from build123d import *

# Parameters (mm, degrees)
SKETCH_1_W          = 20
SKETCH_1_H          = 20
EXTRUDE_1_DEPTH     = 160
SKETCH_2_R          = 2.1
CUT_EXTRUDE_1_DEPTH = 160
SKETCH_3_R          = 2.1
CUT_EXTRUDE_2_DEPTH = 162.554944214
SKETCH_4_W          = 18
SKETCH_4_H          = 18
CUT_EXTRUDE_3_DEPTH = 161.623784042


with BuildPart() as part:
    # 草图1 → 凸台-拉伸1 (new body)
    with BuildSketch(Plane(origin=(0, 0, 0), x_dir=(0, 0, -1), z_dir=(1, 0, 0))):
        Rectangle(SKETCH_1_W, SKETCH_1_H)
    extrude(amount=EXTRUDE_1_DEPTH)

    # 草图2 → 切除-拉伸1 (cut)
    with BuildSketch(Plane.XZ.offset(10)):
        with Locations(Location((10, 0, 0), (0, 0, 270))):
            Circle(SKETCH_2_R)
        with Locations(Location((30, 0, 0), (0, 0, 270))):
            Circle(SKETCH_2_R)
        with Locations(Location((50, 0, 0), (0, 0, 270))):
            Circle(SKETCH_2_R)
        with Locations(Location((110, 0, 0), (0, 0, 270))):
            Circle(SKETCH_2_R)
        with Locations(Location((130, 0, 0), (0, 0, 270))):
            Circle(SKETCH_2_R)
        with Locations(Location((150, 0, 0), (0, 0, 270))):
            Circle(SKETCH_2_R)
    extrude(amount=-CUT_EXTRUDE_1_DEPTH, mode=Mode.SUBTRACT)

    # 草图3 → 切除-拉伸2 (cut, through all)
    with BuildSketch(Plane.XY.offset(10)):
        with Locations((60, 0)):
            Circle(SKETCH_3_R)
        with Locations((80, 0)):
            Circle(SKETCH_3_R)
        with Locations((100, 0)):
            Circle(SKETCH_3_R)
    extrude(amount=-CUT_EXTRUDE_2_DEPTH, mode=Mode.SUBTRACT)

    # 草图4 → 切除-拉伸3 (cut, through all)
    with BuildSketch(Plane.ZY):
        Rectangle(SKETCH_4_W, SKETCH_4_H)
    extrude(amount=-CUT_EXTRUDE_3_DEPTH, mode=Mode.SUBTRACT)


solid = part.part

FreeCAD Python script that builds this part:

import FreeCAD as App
import Part
import Sketcher
from FreeCAD import Vector
Q = App.Units.Quantity

doc = App.newDocument("Part")
body = doc.addObject("PartDesign::Body", "Body")

# Sketch on YZ plane
sketch1 = body.newObject("Sketcher::SketchObject", "Sketch")
sketch1.AttachmentSupport = (doc.getObject("YZ_Plane"), [""])
sketch1.MapMode = "FlatFace"
sketch1.addGeometry([
    Part.LineSegment(Vector(10, 10, 0), Vector(-10, 10, 0)),
    Part.LineSegment(Vector(-10, 10, 0), Vector(-10, -10, 0)),
    Part.LineSegment(Vector(-10, -10, 0), Vector(10, -10, 0)),
    Part.LineSegment(Vector(10, -10, 0), Vector(10, 10, 0)),
], False)
sketch1.addConstraint([
    Sketcher.Constraint("Coincident", 0, 2, 1, 1),
    Sketcher.Constraint("Coincident", 1, 2, 2, 1),
    Sketcher.Constraint("Coincident", 2, 2, 3, 1),
    Sketcher.Constraint("Coincident", 3, 2, 0, 1),
    Sketcher.Constraint("Horizontal", 0),
    Sketcher.Constraint("Vertical", 1),
    Sketcher.Constraint("Horizontal", 2),
    Sketcher.Constraint("Vertical", 3),
    Sketcher.Constraint("Symmetric", 0, 2, 2, 2, -1, 1),
    Sketcher.Constraint("Equal", 2, 1),
    Sketcher.Constraint("DistanceX", 0, 2, 0, 1, Q("20 mm")),
])
pad1 = body.newObject("PartDesign::Pad", "Pad")
pad1.Profile = sketch1
pad1.Length = 160

# Sketch on XZ plane
sketch2 = body.newObject("Sketcher::SketchObject", "Sketch001")
sketch2.AttachmentSupport = (doc.getObject("XZ_Plane"), [""])
sketch2.MapMode = "FlatFace"
sketch2.AttachmentOffset = App.Placement(Vector(0, 0, 10), App.Rotation())
sketch2.addGeometry([
    Part.Circle(Vector(10, 0, 0), Vector(0, 0, 1), 2.1),  # 0
    Part.Circle(Vector(30, 0, 0), Vector(0, 0, 1), 2.1),  # 1
    Part.Circle(Vector(50, 0, 0), Vector(0, 0, 1), 2.1),  # 2
    Part.Circle(Vector(110, 0, 0), Vector(0, 0, 1), 2.1),  # 3
    Part.Circle(Vector(130, 0, 0), Vector(0, 0, 1), 2.1),  # 4
    Part.Circle(Vector(150, 0, 0), Vector(0, 0, 1), 2.1),  # 5
], False)
sketch2.addConstraint([
    Sketcher.Constraint("Equal", 0, 1),
    Sketcher.Constraint("Equal", 1, 2),
    Sketcher.Constraint("Equal", 2, 3),
    Sketcher.Constraint("Equal", 3, 4),
    Sketcher.Constraint("Equal", 4, 5),
    Sketcher.Constraint("PointOnObject", 0, 3, -1),
    Sketcher.Constraint("PointOnObject", 1, 3, -1),
    Sketcher.Constraint("PointOnObject", 2, 3, -1),
    Sketcher.Constraint("PointOnObject", 3, 3, -1),
    Sketcher.Constraint("PointOnObject", 4, 3, -1),
    Sketcher.Constraint("PointOnObject", 5, 3, -1),
    Sketcher.Constraint("Diameter", 0, Q("4.2 mm")),
    Sketcher.Constraint("DistanceX", -1, 1, 0, 3, Q("10 mm")),
    Sketcher.Constraint("DistanceX", -1, 1, 1, 3, Q("30 mm")),
    Sketcher.Constraint("DistanceX", -1, 1, 2, 3, Q("50 mm")),
    Sketcher.Constraint("DistanceX", -1, 1, 3, 3, Q("110 mm")),
    Sketcher.Constraint("DistanceX", -1, 1, 4, 3, Q("130 mm")),
    Sketcher.Constraint("DistanceX", -1, 1, 5, 3, Q("150 mm")),
])
pocket1 = body.newObject("PartDesign::Pocket", "Pocket")
pocket1.Profile = sketch2
pocket1.Length = 160

# Sketch on XY plane
sketch3 = body.newObject("Sketcher::SketchObject", "Sketch002")
sketch3.AttachmentSupport = (doc.getObject("XY_Plane"), [""])
sketch3.MapMode = "FlatFace"
sketch3.AttachmentOffset = App.Placement(Vector(0, 0, 10), App.Rotation())
sketch3.addGeometry([
    Part.Circle(Vector(60, 0, 0), Vector(0, 0, 1), 2.1),
    Part.Circle(Vector(80, 0, 0), Vector(0, 0, 1), 2.1),
    Part.Circle(Vector(100, 0, 0), Vector(0, 0, 1), 2.1),
], False)
sketch3.addConstraint([
    Sketcher.Constraint("Equal", 0, 1),
    Sketcher.Constraint("Equal", 1, 2),
    Sketcher.Constraint("PointOnObject", 0, 3, -1),
    Sketcher.Constraint("PointOnObject", 1, 3, -1),
    Sketcher.Constraint("PointOnObject", 2, 3, -1),
    Sketcher.Constraint("Diameter", 0, Q("4.2 mm")),
    Sketcher.Constraint("DistanceX", -1, 1, 0, 3, Q("60 mm")),
    Sketcher.Constraint("DistanceX", -1, 1, 1, 3, Q("80 mm")),
    Sketcher.Constraint("DistanceX", -1, 1, 2, 3, Q("100 mm")),
])
pocket2 = body.newObject("PartDesign::Pocket", "Pocket001")
pocket2.Profile = sketch3
pocket2.Type = "ThroughAll"

# Sketch on YZ plane
sketch4 = body.newObject("Sketcher::SketchObject", "Sketch003")
sketch4.AttachmentSupport = (doc.getObject("YZ_Plane"), [""])
sketch4.MapMode = "FlatFace"
sketch4.addGeometry([
    Part.LineSegment(Vector(9, -9, 0), Vector(-9, -9, 0)),
    Part.LineSegment(Vector(-9, -9, 0), Vector(-9, 9, 0)),
    Part.LineSegment(Vector(-9, 9, 0), Vector(9, 9, 0)),
    Part.LineSegment(Vector(9, 9, 0), Vector(9, -9, 0)),
], False)
sketch4.addConstraint([
    Sketcher.Constraint("Coincident", 0, 2, 1, 1),
    Sketcher.Constraint("Coincident", 1, 2, 2, 1),
    Sketcher.Constraint("Coincident", 2, 2, 3, 1),
    Sketcher.Constraint("Coincident", 3, 2, 0, 1),
    Sketcher.Constraint("Horizontal", 0),
    Sketcher.Constraint("Vertical", 1),
    Sketcher.Constraint("Horizontal", 2),
    Sketcher.Constraint("Vertical", 3),
    Sketcher.Constraint("Symmetric", 0, 2, 2, 2, -1, 1),
    Sketcher.Constraint("Equal", 2, 1),
    Sketcher.Constraint("DistanceX", 0, 2, 0, 1, Q("18 mm")),
])
pocket3 = body.newObject("PartDesign::Pocket", "Pocket002")
pocket3.Profile = sketch4
pocket3.Type = "ThroughAll"
pocket3.Reversed = True

doc.recompute()
